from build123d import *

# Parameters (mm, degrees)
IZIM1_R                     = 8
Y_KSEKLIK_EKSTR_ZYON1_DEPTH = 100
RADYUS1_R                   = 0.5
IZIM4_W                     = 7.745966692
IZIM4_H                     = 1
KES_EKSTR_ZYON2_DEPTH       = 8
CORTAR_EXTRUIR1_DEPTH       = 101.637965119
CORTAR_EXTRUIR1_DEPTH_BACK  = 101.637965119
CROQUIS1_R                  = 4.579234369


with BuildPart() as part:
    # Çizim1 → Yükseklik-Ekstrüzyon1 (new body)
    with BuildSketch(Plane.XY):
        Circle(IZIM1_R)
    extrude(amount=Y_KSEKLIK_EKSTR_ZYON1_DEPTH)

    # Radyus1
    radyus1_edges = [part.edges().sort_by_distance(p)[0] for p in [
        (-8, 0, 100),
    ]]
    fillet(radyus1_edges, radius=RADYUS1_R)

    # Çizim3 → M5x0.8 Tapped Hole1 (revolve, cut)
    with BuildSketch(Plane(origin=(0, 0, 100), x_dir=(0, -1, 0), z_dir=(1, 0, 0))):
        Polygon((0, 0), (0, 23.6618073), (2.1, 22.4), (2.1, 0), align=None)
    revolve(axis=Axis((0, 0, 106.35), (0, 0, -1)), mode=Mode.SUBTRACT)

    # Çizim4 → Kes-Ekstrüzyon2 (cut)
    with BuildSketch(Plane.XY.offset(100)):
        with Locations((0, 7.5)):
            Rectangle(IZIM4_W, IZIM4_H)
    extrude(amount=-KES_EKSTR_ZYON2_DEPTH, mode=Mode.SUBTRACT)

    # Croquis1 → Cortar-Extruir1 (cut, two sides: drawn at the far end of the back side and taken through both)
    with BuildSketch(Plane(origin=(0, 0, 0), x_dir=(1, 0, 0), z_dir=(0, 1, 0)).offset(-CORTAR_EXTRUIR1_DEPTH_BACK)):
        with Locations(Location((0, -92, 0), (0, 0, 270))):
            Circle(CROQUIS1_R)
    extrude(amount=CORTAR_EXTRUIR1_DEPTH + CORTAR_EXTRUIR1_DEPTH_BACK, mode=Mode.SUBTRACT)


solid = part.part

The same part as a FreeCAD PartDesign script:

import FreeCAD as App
import Part
import Sketcher
Q = App.Units.Quantity


def edges_at(feature, points):
    """Names of the edges that pass closest to the given points."""
    edges = feature.Shape.Edges
    near = lambda p: min(range(len(edges)), key=lambda i: edges[i].distToShape(Part.Vertex(*p))[0])
    return sorted({f"Edge{near(p) + 1}" for p in points})

doc = App.newDocument("Part")
body = doc.addObject("PartDesign::Body", "Body")

sketch1 = body.newObject("Sketcher::SketchObject", "Sketch")
sketch1.AttachmentSupport = (doc.getObject("XY_Plane"), [""])
sketch1.MapMode = "FlatFace"
sketch1.addGeometry(Part.Circle(App.Vector(0, 0, 0), App.Vector(0, 0, 1), 8), False)
sketch1.addConstraint([
    Sketcher.Constraint("Coincident", 0, 3, -1, 1),
    Sketcher.Constraint("Diameter", 0, Q("16 mm")),
])
pad1 = body.newObject("PartDesign::Pad", "Pad")
pad1.Profile = sketch1
pad1.Length = 100
doc.recompute()

fillet = body.newObject("PartDesign::Fillet", "Fillet")
fillet.Base = (pad1, edges_at(pad1, [(-8, 0, 100)]))
fillet.Radius = 0.5

sketch2 = body.newObject("Sketcher::SketchObject", "Sketch001")
sketch2.AttachmentSupport = (doc.getObject("YZ_Plane"), [""])
sketch2.MapMode = "FlatFace"
sketch2.addGeometry([
    Part.LineSegment(App.Vector(0, 76.338193, 0), App.Vector(0, 100, 0)),
    Part.LineSegment(App.Vector(0, 100, 0), App.Vector(-2.1, 100, 0)),
    Part.LineSegment(App.Vector(-2.1, 100, 0), App.Vector(-2.1, 77.6, 0)),
    Part.LineSegment(App.Vector(-2.1, 77.6, 0), App.Vector(0, 76.338193, 0)),
], False)
sketch2.addConstraint([
    Sketcher.Constraint("Coincident", 0, 2, 1, 1),
    Sketcher.Constraint("Coincident", 1, 2, 2, 1),
    Sketcher.Constraint("Coincident", 2, 2, 3, 1),
    Sketcher.Constraint("Coincident", 3, 2, 0, 1),
    Sketcher.Constraint("Vertical", 0),
    Sketcher.Constraint("Horizontal", 1),
    Sketcher.Constraint("Vertical", 2),
    Sketcher.Constraint("PointOnObject", 0, 2, -2),
    Sketcher.Constraint("Angle", 3, Q("-31 deg")),
    Sketcher.Constraint("DistanceX", 1, 2, 1, 1, Q("2.1 mm")),
    Sketcher.Constraint("DistanceY", 2, 2, 2, 1, Q("22.4 mm")),
    Sketcher.Constraint("DistanceY", -1, 1, 0, 2, Q("100 mm")),
])
groove = body.newObject("PartDesign::Groove", "Groove")
groove.Profile = sketch2
groove.ReferenceAxis = (sketch2, ["V_Axis"])
groove.Angle = 360

sketch3 = body.newObject("Sketcher::SketchObject", "Sketch002")
sketch3.AttachmentSupport = (doc.getObject("XY_Plane"), [""])
sketch3.MapMode = "FlatFace"
sketch3.AttachmentOffset = App.Placement(App.Vector(0, 0, 100), App.Rotation())
sketch3.addGeometry([
    Part.LineSegment(App.Vector(-3.872983, 8, 0), App.Vector(-3.872983, 7, 0)),
    Part.LineSegment(App.Vector(-3.872983, 7, 0), App.Vector(3.872983, 7, 0)),
    Part.LineSegment(App.Vector(3.872983, 7, 0), App.Vector(3.872983, 8, 0)),
    Part.LineSegment(App.Vector(3.872983, 8, 0), App.Vector(-3.872983, 8, 0)),
], False)
sketch3.addConstraint([
    Sketcher.Constraint("Coincident", 0, 2, 1, 1),
    Sketcher.Constraint("Coincident", 1, 2, 2, 1),
    Sketcher.Constraint("Coincident", 2, 2, 3, 1),
    Sketcher.Constraint("Coincident", 3, 2, 0, 1),
    Sketcher.Constraint("Vertical", 0),
    Sketcher.Constraint("Horizontal", 1),
    Sketcher.Constraint("Vertical", 2),
    Sketcher.Constraint("Horizontal", 3),
    Sketcher.Constraint("DistanceY", 0, 2, 0, 1, Q("1 mm")),
    Sketcher.Constraint("DistanceY", -1, 1, 0, 2, Q("7 mm")),
    Sketcher.Constraint("DistanceX", 1, 1, 1, 2, Q("7.745967 mm")),
    Sketcher.Constraint("DistanceX", 0, 2, -1, 1, Q("3.872983 mm")),
])
pocket1 = body.newObject("PartDesign::Pocket", "Pocket")
pocket1.Profile = sketch3
pocket1.Length = 8

sketch4 = body.newObject("Sketcher::SketchObject", "Sketch003")
sketch4.AttachmentSupport = (doc.getObject("XZ_Plane"), [""])
sketch4.MapMode = "FlatFace"
sketch4.addGeometry(Part.Circle(App.Vector(0, 92, 0), App.Vector(0, 0, 1), 4.579234), False)
sketch4.addConstraint([
    Sketcher.Constraint("PointOnObject", 0, 3, -2),
    Sketcher.Constraint("DistanceY", -1, 1, 0, 3, Q("92 mm")),
    Sketcher.Constraint("Diameter", 0, Q("9.158469 mm")),
])
pocket2 = body.newObject("PartDesign::Pocket", "Pocket001")
pocket2.Profile = sketch4
pocket2.Type = "ThroughAll"
pocket2.Midplane = True

doc.recompute()
